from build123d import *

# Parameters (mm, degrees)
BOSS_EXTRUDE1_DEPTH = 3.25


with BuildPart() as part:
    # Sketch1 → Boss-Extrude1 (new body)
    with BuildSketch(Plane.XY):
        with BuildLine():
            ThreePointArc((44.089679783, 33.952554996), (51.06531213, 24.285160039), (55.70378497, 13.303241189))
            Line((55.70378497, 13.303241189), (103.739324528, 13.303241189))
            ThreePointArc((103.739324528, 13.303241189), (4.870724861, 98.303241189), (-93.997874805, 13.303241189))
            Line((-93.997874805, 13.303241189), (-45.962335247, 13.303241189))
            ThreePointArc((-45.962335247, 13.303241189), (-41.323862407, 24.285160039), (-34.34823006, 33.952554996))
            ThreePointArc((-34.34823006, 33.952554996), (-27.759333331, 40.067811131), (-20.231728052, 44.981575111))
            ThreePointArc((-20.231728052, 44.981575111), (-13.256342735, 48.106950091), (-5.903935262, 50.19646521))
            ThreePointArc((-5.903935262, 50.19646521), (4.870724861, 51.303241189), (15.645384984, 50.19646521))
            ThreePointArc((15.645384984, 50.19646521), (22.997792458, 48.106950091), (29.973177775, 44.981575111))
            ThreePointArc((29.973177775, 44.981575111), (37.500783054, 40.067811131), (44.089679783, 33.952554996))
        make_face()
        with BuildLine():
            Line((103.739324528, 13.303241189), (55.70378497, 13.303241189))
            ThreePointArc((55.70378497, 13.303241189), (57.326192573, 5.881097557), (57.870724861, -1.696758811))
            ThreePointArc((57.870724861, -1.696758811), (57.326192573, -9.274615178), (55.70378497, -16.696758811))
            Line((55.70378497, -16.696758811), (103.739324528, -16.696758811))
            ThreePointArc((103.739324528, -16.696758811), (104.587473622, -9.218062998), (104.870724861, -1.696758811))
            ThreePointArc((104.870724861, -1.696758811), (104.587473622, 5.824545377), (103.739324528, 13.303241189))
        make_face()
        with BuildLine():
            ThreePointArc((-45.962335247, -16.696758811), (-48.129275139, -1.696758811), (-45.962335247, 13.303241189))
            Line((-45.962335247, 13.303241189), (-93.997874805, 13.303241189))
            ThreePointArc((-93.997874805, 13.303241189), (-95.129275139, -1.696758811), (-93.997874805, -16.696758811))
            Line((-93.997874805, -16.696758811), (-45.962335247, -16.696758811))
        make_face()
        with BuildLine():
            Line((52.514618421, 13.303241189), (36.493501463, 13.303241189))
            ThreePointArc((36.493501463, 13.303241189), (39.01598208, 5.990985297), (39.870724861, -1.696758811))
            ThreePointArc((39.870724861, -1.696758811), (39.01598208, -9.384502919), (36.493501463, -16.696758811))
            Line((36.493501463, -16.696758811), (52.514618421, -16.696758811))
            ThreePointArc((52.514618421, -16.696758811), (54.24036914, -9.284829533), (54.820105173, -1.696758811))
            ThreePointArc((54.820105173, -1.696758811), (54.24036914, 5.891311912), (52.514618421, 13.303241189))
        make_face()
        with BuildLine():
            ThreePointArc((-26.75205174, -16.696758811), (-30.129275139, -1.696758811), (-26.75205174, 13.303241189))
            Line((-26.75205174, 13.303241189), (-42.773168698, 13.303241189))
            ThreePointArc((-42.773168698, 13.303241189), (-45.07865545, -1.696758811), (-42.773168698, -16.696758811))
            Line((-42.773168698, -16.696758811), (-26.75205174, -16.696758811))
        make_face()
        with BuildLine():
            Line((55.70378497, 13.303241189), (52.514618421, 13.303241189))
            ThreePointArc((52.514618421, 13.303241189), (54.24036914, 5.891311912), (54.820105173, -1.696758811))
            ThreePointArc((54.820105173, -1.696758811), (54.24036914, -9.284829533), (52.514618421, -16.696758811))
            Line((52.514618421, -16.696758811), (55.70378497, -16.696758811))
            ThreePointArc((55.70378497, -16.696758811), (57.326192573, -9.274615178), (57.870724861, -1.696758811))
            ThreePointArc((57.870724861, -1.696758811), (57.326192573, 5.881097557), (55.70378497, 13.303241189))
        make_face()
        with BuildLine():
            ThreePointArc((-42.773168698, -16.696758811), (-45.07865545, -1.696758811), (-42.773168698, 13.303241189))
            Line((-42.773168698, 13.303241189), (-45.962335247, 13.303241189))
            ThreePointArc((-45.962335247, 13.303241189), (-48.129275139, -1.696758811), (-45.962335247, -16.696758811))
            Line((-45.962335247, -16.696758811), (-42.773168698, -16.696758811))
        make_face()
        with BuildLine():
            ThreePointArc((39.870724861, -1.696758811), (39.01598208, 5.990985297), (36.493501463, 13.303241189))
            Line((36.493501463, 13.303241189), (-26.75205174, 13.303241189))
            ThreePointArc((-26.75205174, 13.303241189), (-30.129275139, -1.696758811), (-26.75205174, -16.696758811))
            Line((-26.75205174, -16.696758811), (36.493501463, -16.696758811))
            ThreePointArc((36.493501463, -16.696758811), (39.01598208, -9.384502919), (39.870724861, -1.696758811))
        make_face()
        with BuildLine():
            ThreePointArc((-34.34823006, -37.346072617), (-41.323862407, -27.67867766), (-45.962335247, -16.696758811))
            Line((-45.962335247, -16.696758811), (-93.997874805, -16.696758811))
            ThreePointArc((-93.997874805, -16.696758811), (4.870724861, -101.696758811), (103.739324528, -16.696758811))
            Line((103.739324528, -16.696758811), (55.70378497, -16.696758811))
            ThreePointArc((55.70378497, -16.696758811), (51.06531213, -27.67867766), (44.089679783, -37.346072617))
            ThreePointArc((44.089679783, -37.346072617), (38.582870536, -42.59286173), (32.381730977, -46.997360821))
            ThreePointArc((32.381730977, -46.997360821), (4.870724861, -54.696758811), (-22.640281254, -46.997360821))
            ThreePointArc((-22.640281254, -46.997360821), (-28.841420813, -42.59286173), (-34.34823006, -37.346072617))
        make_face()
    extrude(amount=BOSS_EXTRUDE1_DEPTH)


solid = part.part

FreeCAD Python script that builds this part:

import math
import FreeCAD as App
import Part
import Sketcher

V = App.Vector

doc = App.newDocument("Part")
body = doc.addObject("PartDesign::Body", "Body")

# Sketch on XY plane
sketch1 = doc.addObject("Sketcher::SketchObject", "Sketch")
body.addObject(sketch1)
sketch1.AttachmentSupport = (doc.XY_Plane, [""])
sketch1.MapMode = "FlatFace"
sketch1.addGeometry([
    Part.ArcOfCircle(Part.Circle(V(5, -2, 0), V(0, 0, 1), 100), math.radians(171.37), math.radians(188.63)),  # 0
    Part.ArcOfCircle(Part.Circle(V(5, -2, 0), V(0, 0, 1), 100), math.radians(-171), math.radians(-9)),  # 1
    Part.ArcOfCircle(Part.Circle(V(5, -2, 0), V(0, 0, 1), 100), math.radians(-8.63), math.radians(0)),  # 2
    Part.ArcOfCircle(Part.Circle(V(5, -2, 0), V(0, 0, 1), 100), math.radians(0), math.radians(8.63)),  # 3
    Part.ArcOfCircle(Part.Circle(V(5, -2, 0), V(0, 0, 1), 100), math.radians(9), math.radians(171)),  # 4
    Part.LineSegment(V(-46, -17, 0), V(56, -17, 0)),  # 5
    Part.ArcOfCircle(Part.Circle(V(5, -2, 0), V(0, 0, 1), 53), math.radians(-42), math.radians(-16)),  # 6
    Part.ArcOfCircle(Part.Circle(V(5, -2, 0), V(0, 0, 1), 53), math.radians(-58.73), math.radians(-42.27)),  # 7
    Part.ArcOfCircle(Part.Circle(V(5, -2, 0), V(0, 0, 1), 53), math.radians(-121), math.radians(-59)),  # 8
    Part.ArcOfCircle(Part.Circle(V(5, -2, 0), V(0, 0, 1), 53), math.radians(-137.73), math.radians(-121.27)),  # 9
    Part.ArcOfCircle(Part.Circle(V(5, -2, 0), V(0, 0, 1), 53), math.radians(-164), math.radians(-138)),  # 10
    Part.ArcOfCircle(Part.Circle(V(5, -2, 0), V(0, 0, 1), 53), math.radians(118.27), math.radians(137.73)),  # 11
    Part.ArcOfCircle(Part.Circle(V(5, -2, 0), V(0, 0, 1), 53), math.radians(101.73), math.radians(118.27)),  # 12
    Part.ArcOfCircle(Part.Circle(V(5, -2, 0), V(0, 0, 1), 53), math.radians(78), math.radians(102)),  # 13
    Part.ArcOfCircle(Part.Circle(V(5, -2, 0), V(0, 0, 1), 53), math.radians(61.73), math.radians(78.27)),  # 14
    Part.ArcOfCircle(Part.Circle(V(5, -2, 0), V(0, 0, 1), 53), math.radians(42.27), math.radians(61.73)),  # 15
    Part.ArcOfCircle(Part.Circle(V(5, -2, 0), V(0, 0, 1), 53), math.radians(16), math.radians(42)),  # 16
    Part.LineSegment(V(56, 13, 0), V(-46, 13, 0)),  # 17
    Part.ArcOfCircle(Part.Circle(V(5, -2, 0), V(0, 0, 1), 53), math.radians(138), math.radians(164)),  # 18
], False)
sketch1.addConstraint([
    Sketcher.Constraint("Tangent", 0, 2, 1, 1),
    Sketcher.Constraint("Tangent", 1, 2, 2, 1),
    Sketcher.Constraint("Tangent", 2, 2, 3, 1),
    Sketcher.Constraint("Tangent", 3, 2, 4, 1),
    Sketcher.Constraint("Tangent", 4, 2, 0, 1),
    Sketcher.Constraint("Coincident", 5, 2, 6, 2),
    Sketcher.Constraint("Tangent", 6, 1, 7, 2),
    Sketcher.Constraint("Tangent", 7, 1, 8, 2),
    Sketcher.Constraint("Tangent", 8, 1, 9, 2),
    Sketcher.Constraint("Tangent", 9, 1, 10, 2),
    Sketcher.Constraint("Coincident", 10, 1, 5, 1),
    Sketcher.Constraint("Tangent", 11, 1, 12, 2),
    Sketcher.Constraint("Tangent", 12, 1, 13, 2),
    Sketcher.Constraint("Tangent", 13, 1, 14, 2),
    Sketcher.Constraint("Tangent", 14, 1, 15, 2),
    Sketcher.Constraint("Tangent", 15, 1, 16, 2),
    Sketcher.Constraint("Coincident", 16, 1, 17, 1),
    Sketcher.Constraint("Coincident", 17, 2, 18, 2),
    Sketcher.Constraint("Tangent", 18, 1, 11, 2),
    Sketcher.Constraint("Horizontal", 5),
    Sketcher.Constraint("Horizontal", 17),
    Sketcher.Constraint("Coincident", 2, 3, 0, 3),
    Sketcher.Constraint("Coincident", 6, 3, 0, 3),
    Sketcher.Constraint("Coincident", 8, 3, 0, 3),
    Sketcher.Constraint("Coincident", 10, 3, 0, 3),
    Sketcher.Constraint("Coincident", 11, 3, 0, 3),
    Sketcher.Constraint("Coincident", 13, 3, 0, 3),
    Sketcher.Constraint("Coincident", 15, 3, 0, 3),
    Sketcher.Constraint("Equal", 10, 11),
    Sketcher.Constraint("Equal", 15, 16),
    Sketcher.Constraint("Equal", 16, 18),
    Sketcher.Constraint("Horizontal", 0, 2, 1, 2),
    Sketcher.Constraint("Horizontal", 18, 3, 2, 2),
    Sketcher.Constraint("Horizontal", 3, 2, 4, 2),
    Sketcher.Constraint("Horizontal", 1, 2, 5, 2),
    Sketcher.Constraint("Horizontal", 7, 1, 8, 1),
    Sketcher.Constraint("Horizontal", 6, 1, 9, 1),
    Sketcher.Constraint("Horizontal", 12, 1, 13, 1),
    Sketcher.Constraint("Horizontal", 11, 1, 14, 1),
    Sketcher.Constraint("Horizontal", 4, 2, 16, 1),
    Sketcher.Constraint("Horizontal", 15, 1, 18, 1),
    Sketcher.Constraint("Vertical", 1, 2, 3, 2),
    Sketcher.Constraint("Vertical", 6, 1, 15, 1),
    Sketcher.Constraint("Radius", 0, 100.0),
    Sketcher.Constraint("Radius", 6, 53.0),
    Sketcher.Constraint("DistanceY", 0, 2, 0, 3, 15.0),
    Sketcher.Constraint("DistanceY", 7, 1, 2, 3, 45.300602),
    Sketcher.Constraint("DistanceY", 0, 3, -1, 1, 1.696759),
    Sketcher.Constraint("DistanceX", -1, 1, 6, 1, 44.08968),
    Sketcher.Constraint("DistanceX", -1, 1, 7, 1, 32.381731),
    Sketcher.Constraint("DistanceX", 11, 1, -1, 1, 20.231728),
    Sketcher.Constraint("DistanceY", 11, 1, 12, 1, 5.21489),
])
pad1 = doc.addObject("PartDesign::Pad", "Pad")
body.addObject(pad1)
pad1.Profile = sketch1
pad1.Length = 3.25

doc.recompute()
